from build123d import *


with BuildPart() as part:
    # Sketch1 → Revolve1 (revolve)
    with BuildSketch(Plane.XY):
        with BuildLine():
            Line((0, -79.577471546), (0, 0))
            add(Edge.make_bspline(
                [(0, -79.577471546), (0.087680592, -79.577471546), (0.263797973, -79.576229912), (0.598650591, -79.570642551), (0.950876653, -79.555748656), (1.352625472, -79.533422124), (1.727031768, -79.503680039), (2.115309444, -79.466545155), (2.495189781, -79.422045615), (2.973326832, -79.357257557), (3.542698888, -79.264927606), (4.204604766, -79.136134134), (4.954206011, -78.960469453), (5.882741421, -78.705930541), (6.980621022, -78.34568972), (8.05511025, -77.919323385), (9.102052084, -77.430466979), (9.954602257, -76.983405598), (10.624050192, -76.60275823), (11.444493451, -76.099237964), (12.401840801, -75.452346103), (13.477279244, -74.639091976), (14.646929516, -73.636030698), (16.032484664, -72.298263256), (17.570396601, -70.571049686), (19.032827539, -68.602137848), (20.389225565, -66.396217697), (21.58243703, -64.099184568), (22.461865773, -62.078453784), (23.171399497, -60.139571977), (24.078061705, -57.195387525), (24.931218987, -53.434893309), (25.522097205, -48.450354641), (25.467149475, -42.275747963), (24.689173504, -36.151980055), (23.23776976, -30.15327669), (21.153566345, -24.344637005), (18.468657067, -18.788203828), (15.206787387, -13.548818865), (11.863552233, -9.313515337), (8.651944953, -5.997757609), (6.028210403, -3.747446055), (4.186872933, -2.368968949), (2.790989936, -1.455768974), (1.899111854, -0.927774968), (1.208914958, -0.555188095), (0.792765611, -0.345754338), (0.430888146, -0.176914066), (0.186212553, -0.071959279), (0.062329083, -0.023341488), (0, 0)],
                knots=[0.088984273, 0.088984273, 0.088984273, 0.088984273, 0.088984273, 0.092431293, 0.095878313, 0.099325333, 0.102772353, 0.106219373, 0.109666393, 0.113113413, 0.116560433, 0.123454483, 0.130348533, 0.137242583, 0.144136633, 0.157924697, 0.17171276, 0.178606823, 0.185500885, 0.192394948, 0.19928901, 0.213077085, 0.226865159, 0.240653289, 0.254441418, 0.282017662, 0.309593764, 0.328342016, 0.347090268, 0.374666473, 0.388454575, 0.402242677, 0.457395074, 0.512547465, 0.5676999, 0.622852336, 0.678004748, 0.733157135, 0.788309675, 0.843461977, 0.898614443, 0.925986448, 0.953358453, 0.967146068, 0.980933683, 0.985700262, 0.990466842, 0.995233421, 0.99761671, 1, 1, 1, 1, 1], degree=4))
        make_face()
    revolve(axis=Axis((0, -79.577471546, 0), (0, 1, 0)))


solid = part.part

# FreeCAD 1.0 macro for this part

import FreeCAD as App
import Part
import Sketcher

V = App.Vector

doc = App.newDocument("Part")
body = doc.addObject("PartDesign::Body", "Body")

sketch1 = body.newObject("Sketcher::SketchObject", "Sketch")
sketch1.AttachmentSupport = (doc.getObject("XY_Plane"), [""])
sketch1.MapMode = "FlatFace"
sketch1.addGeometry([
    Part.LineSegment(V(0, 0, 0), V(0, -79.577472, 0)),
    Part.BSplineCurve([V(0, -79.577472, 0), V(0.087681, -79.577472, 0), V(0.263798, -79.57623, 0), V(0.598651, -79.570643, 0), V(0.950877, -79.555749, 0), V(1.352625, -79.533422, 0), V(1.727032, -79.50368, 0), V(2.115309, -79.466545, 0), V(2.49519, -79.422046, 0), V(2.973327, -79.357258, 0), V(3.542699, -79.264928, 0), V(4.204605, -79.136134, 0), V(4.954206, -78.960469, 0), V(5.882741, -78.705931, 0), V(6.980621, -78.34569, 0), V(8.05511, -77.919323, 0), V(9.102052, -77.430467, 0), V(9.954602, -76.983406, 0), V(10.62405, -76.602758, 0), V(11.444493, -76.099238, 0), V(12.401841, -75.452346, 0), V(13.477279, -74.639092, 0), V(14.64693, -73.636031, 0), V(16.032485, -72.298263, 0), V(17.570397, -70.57105, 0), V(19.032828, -68.602138, 0), V(20.389226, -66.396218, 0), V(21.582437, -64.099185, 0), V(22.461866, -62.078454, 0), V(23.171399, -60.139572, 0), V(24.078062, -57.195388, 0), V(24.931219, -53.434893, 0), V(25.522097, -48.450355, 0), V(25.467149, -42.275748, 0), V(24.689174, -36.15198, 0), V(23.23777, -30.153277, 0), V(21.153566, -24.344637, 0), V(18.468657, -18.788204, 0), V(15.206787, -13.548819, 0), V(11.863552, -9.313515, 0), V(8.651945, -5.997758, 0), V(6.02821, -3.747446, 0), V(4.186873, -2.368969, 0), V(2.79099, -1.455769, 0), V(1.899112, -0.927775, 0), V(1.208915, -0.555188, 0), V(0.792766, -0.345754, 0), V(0.430888, -0.176914, 0), V(0.186213, -0.071959, 0), V(0.062329, -0.023341, 0), V(0, 0, 0)], [5, 1, 1, 1, 1, 1, 1, 1, 1, 1, 1, 1, 1, 1, 1, 1, 1, 1, 1, 1, 1, 1, 1, 1, 1, 1, 1, 1, 1, 1, 1, 1, 1, 1, 1, 1, 1, 1, 1, 1, 1, 1, 1, 1, 1, 1, 1, 5], [0.088984273, 0.092431293, 0.095878313, 0.099325333, 0.102772353, 0.106219373, 0.109666393, 0.113113413, 0.116560433, 0.123454483, 0.130348533, 0.137242583, 0.144136633, 0.157924697, 0.17171276, 0.178606823, 0.185500885, 0.192394948, 0.19928901, 0.213077085, 0.226865159, 0.240653289, 0.254441418, 0.282017662, 0.309593764, 0.328342016, 0.347090268, 0.374666473, 0.388454575, 0.402242677, 0.457395074, 0.512547465, 0.5676999, 0.622852336, 0.678004748, 0.733157135, 0.788309675, 0.843461977, 0.898614443, 0.925986448, 0.953358453, 0.967146068, 0.980933683, 0.985700262, 0.990466842, 0.995233421, 0.99761671, 1], False, 4, [1, 1, 1, 1, 1, 1, 1, 1, 1, 1, 1, 1, 1, 1, 1, 1, 1, 1, 1, 1, 1, 1, 1, 1, 1, 1, 1, 1, 1, 1, 1, 1, 1, 1, 1, 1, 1, 1, 1, 1, 1, 1, 1, 1, 1, 1, 1, 1, 1, 1, 1], False),
], False)
sketch1.addConstraint([
    Sketcher.Constraint("Block", 1),
    Sketcher.Constraint("Coincident", 0, 1, 1, 2),
    Sketcher.Constraint("Coincident", 1, 1, 0, 2),
])
revolution = body.newObject("PartDesign::Revolution", "Revolution")
revolution.Profile = sketch1
revolution.ReferenceAxis = (sketch1, ["V_Axis"])
revolution.Angle = 360

doc.recompute()
